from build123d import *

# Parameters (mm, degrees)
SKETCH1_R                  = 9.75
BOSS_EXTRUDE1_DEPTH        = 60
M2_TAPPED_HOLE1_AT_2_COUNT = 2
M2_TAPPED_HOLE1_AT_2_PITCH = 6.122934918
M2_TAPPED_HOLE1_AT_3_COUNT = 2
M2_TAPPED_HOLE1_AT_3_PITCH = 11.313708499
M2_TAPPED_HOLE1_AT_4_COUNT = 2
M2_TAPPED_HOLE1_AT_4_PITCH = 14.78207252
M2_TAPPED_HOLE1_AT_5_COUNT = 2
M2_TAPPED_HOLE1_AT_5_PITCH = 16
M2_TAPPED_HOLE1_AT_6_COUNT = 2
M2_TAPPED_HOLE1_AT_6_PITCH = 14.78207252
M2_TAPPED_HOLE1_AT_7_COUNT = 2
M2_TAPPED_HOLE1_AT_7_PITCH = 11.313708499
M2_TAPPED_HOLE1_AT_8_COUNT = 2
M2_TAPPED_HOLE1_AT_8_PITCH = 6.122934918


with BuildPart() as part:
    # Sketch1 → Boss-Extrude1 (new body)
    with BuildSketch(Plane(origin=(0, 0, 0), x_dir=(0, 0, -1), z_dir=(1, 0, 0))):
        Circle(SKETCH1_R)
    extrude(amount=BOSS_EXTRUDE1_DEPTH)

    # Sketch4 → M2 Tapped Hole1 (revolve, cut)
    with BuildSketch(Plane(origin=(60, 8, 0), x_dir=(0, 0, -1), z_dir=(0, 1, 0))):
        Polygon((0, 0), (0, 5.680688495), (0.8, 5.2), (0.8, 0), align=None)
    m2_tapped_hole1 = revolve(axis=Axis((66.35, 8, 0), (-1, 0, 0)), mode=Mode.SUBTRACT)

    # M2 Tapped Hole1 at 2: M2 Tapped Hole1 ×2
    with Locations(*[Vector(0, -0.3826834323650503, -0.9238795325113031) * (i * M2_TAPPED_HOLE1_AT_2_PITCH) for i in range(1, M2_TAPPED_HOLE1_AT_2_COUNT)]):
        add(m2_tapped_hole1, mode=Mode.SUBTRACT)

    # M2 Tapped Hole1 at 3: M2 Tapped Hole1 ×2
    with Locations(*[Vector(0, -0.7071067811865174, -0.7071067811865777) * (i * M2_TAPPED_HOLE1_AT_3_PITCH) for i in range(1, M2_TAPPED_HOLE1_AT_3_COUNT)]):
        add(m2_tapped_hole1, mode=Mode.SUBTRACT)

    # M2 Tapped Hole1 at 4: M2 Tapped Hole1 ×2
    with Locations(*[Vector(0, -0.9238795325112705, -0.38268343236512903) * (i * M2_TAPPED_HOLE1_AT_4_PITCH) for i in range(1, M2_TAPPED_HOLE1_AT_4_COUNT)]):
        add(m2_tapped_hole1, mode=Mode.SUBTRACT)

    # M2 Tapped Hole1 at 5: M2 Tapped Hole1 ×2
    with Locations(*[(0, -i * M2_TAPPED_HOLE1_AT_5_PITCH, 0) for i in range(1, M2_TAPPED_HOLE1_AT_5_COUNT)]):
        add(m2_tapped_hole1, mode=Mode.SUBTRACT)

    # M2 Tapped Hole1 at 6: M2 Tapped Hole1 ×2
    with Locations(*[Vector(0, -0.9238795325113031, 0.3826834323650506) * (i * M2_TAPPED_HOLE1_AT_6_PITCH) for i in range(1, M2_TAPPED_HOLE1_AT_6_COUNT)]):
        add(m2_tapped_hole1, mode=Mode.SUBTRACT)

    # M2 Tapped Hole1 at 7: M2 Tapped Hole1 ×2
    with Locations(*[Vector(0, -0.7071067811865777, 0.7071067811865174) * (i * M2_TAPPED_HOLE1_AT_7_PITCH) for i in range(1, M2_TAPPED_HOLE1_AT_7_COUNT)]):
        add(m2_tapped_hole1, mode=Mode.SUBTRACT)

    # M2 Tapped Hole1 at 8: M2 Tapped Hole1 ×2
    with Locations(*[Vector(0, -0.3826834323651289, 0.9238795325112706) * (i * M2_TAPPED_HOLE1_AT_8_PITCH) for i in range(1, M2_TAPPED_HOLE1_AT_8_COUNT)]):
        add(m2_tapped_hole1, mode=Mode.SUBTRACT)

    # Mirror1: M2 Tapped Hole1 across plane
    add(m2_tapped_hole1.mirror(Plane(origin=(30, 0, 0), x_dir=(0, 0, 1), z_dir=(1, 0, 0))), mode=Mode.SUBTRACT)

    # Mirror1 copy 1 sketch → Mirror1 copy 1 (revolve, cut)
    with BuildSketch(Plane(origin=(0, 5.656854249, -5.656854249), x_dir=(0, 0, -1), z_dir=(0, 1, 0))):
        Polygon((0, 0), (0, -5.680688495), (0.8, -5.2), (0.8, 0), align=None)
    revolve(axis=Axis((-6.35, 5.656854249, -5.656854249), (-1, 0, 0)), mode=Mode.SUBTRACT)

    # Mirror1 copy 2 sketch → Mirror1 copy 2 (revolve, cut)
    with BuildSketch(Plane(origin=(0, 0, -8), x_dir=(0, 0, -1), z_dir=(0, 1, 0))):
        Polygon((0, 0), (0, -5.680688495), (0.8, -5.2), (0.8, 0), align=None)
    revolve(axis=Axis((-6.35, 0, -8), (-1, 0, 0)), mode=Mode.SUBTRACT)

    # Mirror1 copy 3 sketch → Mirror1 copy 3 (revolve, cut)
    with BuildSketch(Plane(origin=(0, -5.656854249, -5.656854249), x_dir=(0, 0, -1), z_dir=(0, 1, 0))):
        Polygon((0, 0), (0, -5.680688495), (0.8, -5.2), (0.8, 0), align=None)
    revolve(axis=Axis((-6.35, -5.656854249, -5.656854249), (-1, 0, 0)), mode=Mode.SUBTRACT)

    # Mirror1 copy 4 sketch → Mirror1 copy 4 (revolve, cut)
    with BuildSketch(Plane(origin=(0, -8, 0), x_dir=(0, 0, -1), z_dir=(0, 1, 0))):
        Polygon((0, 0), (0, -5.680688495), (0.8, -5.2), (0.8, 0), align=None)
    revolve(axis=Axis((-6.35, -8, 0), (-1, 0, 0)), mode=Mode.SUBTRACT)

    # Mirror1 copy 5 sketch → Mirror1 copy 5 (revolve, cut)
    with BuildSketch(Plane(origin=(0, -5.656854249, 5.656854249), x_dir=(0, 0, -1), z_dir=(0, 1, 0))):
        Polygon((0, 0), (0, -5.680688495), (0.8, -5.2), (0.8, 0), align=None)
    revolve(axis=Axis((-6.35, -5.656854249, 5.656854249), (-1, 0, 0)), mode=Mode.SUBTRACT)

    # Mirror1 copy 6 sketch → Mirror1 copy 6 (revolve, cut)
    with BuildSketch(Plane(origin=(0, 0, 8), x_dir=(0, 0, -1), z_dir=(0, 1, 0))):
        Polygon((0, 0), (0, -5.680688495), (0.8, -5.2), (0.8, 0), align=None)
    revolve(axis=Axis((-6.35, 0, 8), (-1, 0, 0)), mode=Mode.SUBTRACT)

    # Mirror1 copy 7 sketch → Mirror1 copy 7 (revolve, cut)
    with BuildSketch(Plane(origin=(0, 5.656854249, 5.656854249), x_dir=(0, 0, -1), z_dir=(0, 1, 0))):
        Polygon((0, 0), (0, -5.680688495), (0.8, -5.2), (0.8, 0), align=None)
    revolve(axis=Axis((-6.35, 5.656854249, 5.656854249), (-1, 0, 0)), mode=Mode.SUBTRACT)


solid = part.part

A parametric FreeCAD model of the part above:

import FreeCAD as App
import Part
import Sketcher
from FreeCAD import Vector
Q = App.Units.Quantity

doc = App.newDocument("Part")
body = doc.addObject("PartDesign::Body", "Body")

sketch1 = body.newObject("Sketcher::SketchObject", "Sketch")
sketch1.AttachmentSupport = (doc.getObject("YZ_Plane"), [""])
sketch1.MapMode = "FlatFace"
sketch1.addGeometry(Part.Circle(Vector(0, 0, 0), Vector(0, 0, 1), 10), False)
sketch1.addConstraint(Sketcher.Constraint("Coincident", 0, 3, -1, 1))
sketch1.addConstraint(Sketcher.Constraint("Diameter", 0, 19.5))
pad1 = body.newObject("PartDesign::Pad", "Pad")
pad1.Profile = sketch1
pad1.Length = 60

sketch2 = body.newObject("Sketcher::SketchObject", "Sketch001")
sketch2.AttachmentSupport = (doc.getObject("XZ_Plane"), [""])
sketch2.MapMode = "FlatFace"
sketch2.AttachmentOffset = App.Placement(Vector(0, 0, -8), App.Rotation())
sketch2.addGeometry(Part.LineSegment(Vector(54.3, 0, 0), Vector(60, 0, 0)), False)
sketch2.addGeometry(Part.LineSegment(Vector(60, 0, 0), Vector(60, -0.8, 0)), False)
sketch2.addGeometry(Part.LineSegment(Vector(60, -0.8, 0), Vector(54.8, -0.8, 0)), False)
sketch2.addGeometry(Part.LineSegment(Vector(54.8, -0.8, 0), Vector(54.3, 0, 0)), False)
sketch2.addConstraint(Sketcher.Constraint("Coincident", 0, 2, 1, 1))
sketch2.addConstraint(Sketcher.Constraint("Coincident", 1, 2, 2, 1))
sketch2.addConstraint(Sketcher.Constraint("Coincident", 2, 2, 3, 1))
sketch2.addConstraint(Sketcher.Constraint("Coincident", 3, 2, 0, 1))
sketch2.addConstraint(Sketcher.Constraint("Horizontal", 0))
sketch2.addConstraint(Sketcher.Constraint("Vertical", 1))
sketch2.addConstraint(Sketcher.Constraint("Horizontal", 2))
sketch2.addConstraint(Sketcher.Constraint("PointOnObject", 0, 2, -1))
sketch2.addConstraint(Sketcher.Constraint("Angle", 3, Q("121 deg")))
sketch2.addConstraint(Sketcher.Constraint("DistanceX", 2, 2, 2, 1, 5.2))
sketch2.addConstraint(Sketcher.Constraint("DistanceY", 1, 2, 1, 1, 0.8))
sketch2.addConstraint(Sketcher.Constraint("DistanceX", -1, 1, 0, 2, 60.0))
groove = body.newObject("PartDesign::Groove", "Groove")
groove.Profile = sketch2
groove.ReferenceAxis = (sketch2, ["H_Axis"])
groove.Angle = 360
doc.recompute()

datumline = body.newObject("PartDesign::Line", "DatumLine")
datumline.Placement = App.Placement(Vector(0, 0, 0), App.Rotation(Vector(0, 0, 1), Vector(0, -0.382683432, -0.923879532)))
linearpattern = body.newObject("PartDesign::LinearPattern", "LinearPattern")
linearpattern.Originals = [groove]
linearpattern.Direction = (datumline, [""])
linearpattern.Mode = "offset"
linearpattern.Offset = 6.122935
linearpattern.Occurrences = 2
body.Tip = linearpattern
doc.recompute()

datumline2 = body.newObject("PartDesign::Line", "DatumLine001")
datumline2.Placement = App.Placement(Vector(0, 0, 0), App.Rotation(Vector(0, 0, 1), Vector(0, -0.707106781, -0.707106781)))
linearpattern2 = body.newObject("PartDesign::LinearPattern", "LinearPattern001")
linearpattern2.Originals = [groove]
linearpattern2.Direction = (datumline2, [""])
linearpattern2.Mode = "offset"
linearpattern2.Offset = 11.313708
linearpattern2.Occurrences = 2
body.Tip = linearpattern2
doc.recompute()

datumline3 = body.newObject("PartDesign::Line", "DatumLine002")
datumline3.Placement = App.Placement(Vector(0, 0, 0), App.Rotation(Vector(0, 0, 1), Vector(0, -0.923879533, -0.382683432)))
linearpattern3 = body.newObject("PartDesign::LinearPattern", "LinearPattern002")
linearpattern3.Originals = [groove]
linearpattern3.Direction = (datumline3, [""])
linearpattern3.Mode = "offset"
linearpattern3.Offset = 14.782073
linearpattern3.Occurrences = 2
body.Tip = linearpattern3
doc.recompute()

linearpattern4 = body.newObject("PartDesign::LinearPattern", "LinearPattern003")
linearpattern4.Originals = [groove]
linearpattern4.Direction = (doc.getObject("Y_Axis"), [""])
linearpattern4.Mode = "offset"
linearpattern4.Offset = 16
linearpattern4.Occurrences = 2
linearpattern4.Reversed = True
body.Tip = linearpattern4
doc.recompute()

datumline4 = body.newObject("PartDesign::Line", "DatumLine003")
datumline4.Placement = App.Placement(Vector(0, 0, 0), App.Rotation(Vector(0, 0, 1), Vector(0, -0.923879533, 0.382683432)))
linearpattern5 = body.newObject("PartDesign::LinearPattern", "LinearPattern004")
linearpattern5.Originals = [groove]
linearpattern5.Direction = (datumline4, [""])
linearpattern5.Mode = "offset"
linearpattern5.Offset = 14.782073
linearpattern5.Occurrences = 2
body.Tip = linearpattern5
doc.recompute()

datumline5 = body.newObject("PartDesign::Line", "DatumLine004")
datumline5.Placement = App.Placement(Vector(0, 0, 0), App.Rotation(Vector(0, 0, 1), Vector(0, -0.707106781, 0.707106781)))
linearpattern6 = body.newObject("PartDesign::LinearPattern", "LinearPattern005")
linearpattern6.Originals = [groove]
linearpattern6.Direction = (datumline5, [""])
linearpattern6.Mode = "offset"
linearpattern6.Offset = 11.313708
linearpattern6.Occurrences = 2
body.Tip = linearpattern6
doc.recompute()

datumline6 = body.newObject("PartDesign::Line", "DatumLine005")
datumline6.Placement = App.Placement(Vector(0, 0, 0), App.Rotation(Vector(0, 0, 1), Vector(0, -0.382683432, 0.923879532)))
linearpattern7 = body.newObject("PartDesign::LinearPattern", "LinearPattern006")
linearpattern7.Originals = [groove]
linearpattern7.Direction = (datumline6, [""])
linearpattern7.Mode = "offset"
linearpattern7.Offset = 6.122935
linearpattern7.Occurrences = 2
body.Tip = linearpattern7
doc.recompute()

datumplane = body.newObject("PartDesign::Plane", "DatumPlane")
datumplane.AttachmentSupport = (doc.getObject("YZ_Plane"), [""])
datumplane.MapMode = "FlatFace"
datumplane.AttachmentOffset = App.Placement(Vector(0, 0, 30), App.Rotation())
mirrored = body.newObject("PartDesign::Mirrored", "Mirrored")
mirrored.Originals = [groove]
mirrored.MirrorPlane = (datumplane, [""])
body.Tip = mirrored

sketch3 = body.newObject("Sketcher::SketchObject", "Sketch002")
sketch3.AttachmentSupport = (doc.getObject("XZ_Plane"), [""])
sketch3.MapMode = "FlatFace"
sketch3.AttachmentOffset = App.Placement(Vector(0, 0, -5.656854), App.Rotation())
sketch3.addGeometry(Part.LineSegment(Vector(0, -5.7, 0), Vector(5.7, -5.7, 0)), False)
sketch3.addGeometry(Part.LineSegment(Vector(5.7, -5.7, 0), Vector(5.2, -6.5, 0)), False)
sketch3.addGeometry(Part.LineSegment(Vector(5.2, -6.5, 0), Vector(0, -6.5, 0)), False)
sketch3.addGeometry(Part.LineSegment(Vector(0, -6.5, 0), Vector(0, -5.7, 0)), False)
sketch3.addGeometry(Part.LineSegment(Vector(5.7, -5.7, 0), Vector(0, -5.7, 0)), True)
sketch3.addConstraint(Sketcher.Constraint("Coincident", 0, 2, 1, 1))
sketch3.addConstraint(Sketcher.Constraint("Coincident", 1, 2, 2, 1))
sketch3.addConstraint(Sketcher.Constraint("Coincident", 2, 2, 3, 1))
sketch3.addConstraint(Sketcher.Constraint("Coincident", 3, 2, 0, 1))
sketch3.addConstraint(Sketcher.Constraint("Horizontal", 0))
sketch3.addConstraint(Sketcher.Constraint("Horizontal", 2))
sketch3.addConstraint(Sketcher.Constraint("Vertical", 3))
sketch3.addConstraint(Sketcher.Constraint("Horizontal", 4))
sketch3.addConstraint(Sketcher.Constraint("Coincident", 4, 1, 0, 2))
sketch3.addConstraint(Sketcher.Constraint("PointOnObject", 2, 2, -2))
sketch3.addConstraint(Sketcher.Constraint("PointOnObject", 4, 2, -2))
sketch3.addConstraint(Sketcher.Constraint("Angle", 1, Q("-121 deg")))
sketch3.addConstraint(Sketcher.Constraint("DistanceX", 2, 2, 2, 1, 5.2))
sketch3.addConstraint(Sketcher.Constraint("DistanceY", 3, 1, 3, 2, 0.8))
sketch3.addConstraint(Sketcher.Constraint("DistanceY", 0, 2, -1, 1, 5.656854))
groove2 = body.newObject("PartDesign::Groove", "Groove001")
groove2.Profile = sketch3
groove2.ReferenceAxis = (sketch3, ["Axis0"])
groove2.Angle = 360

sketch4 = body.newObject("Sketcher::SketchObject", "Sketch003")
sketch4.AttachmentSupport = (doc.getObject("XZ_Plane"), [""])
sketch4.MapMode = "FlatFace"
sketch4.addGeometry(Part.LineSegment(Vector(0, -8, 0), Vector(5.7, -8, 0)), False)
sketch4.addGeometry(Part.LineSegment(Vector(5.7, -8, 0), Vector(5.2, -8.8, 0)), False)
sketch4.addGeometry(Part.LineSegment(Vector(5.2, -8.8, 0), Vector(0, -8.8, 0)), False)
sketch4.addGeometry(Part.LineSegment(Vector(0, -8.8, 0), Vector(0, -8, 0)), False)
sketch4.addGeometry(Part.LineSegment(Vector(5.7, -8, 0), Vector(0, -8, 0)), True)
sketch4.addConstraint(Sketcher.Constraint("Coincident", 0, 2, 1, 1))
sketch4.addConstraint(Sketcher.Constraint("Coincident", 1, 2, 2, 1))
sketch4.addConstraint(Sketcher.Constraint("Coincident", 2, 2, 3, 1))
sketch4.addConstraint(Sketcher.Constraint("Coincident", 3, 2, 0, 1))
sketch4.addConstraint(Sketcher.Constraint("Horizontal", 0))
sketch4.addConstraint(Sketcher.Constraint("Horizontal", 2))
sketch4.addConstraint(Sketcher.Constraint("Vertical", 3))
sketch4.addConstraint(Sketcher.Constraint("Horizontal", 4))
sketch4.addConstraint(Sketcher.Constraint("Coincident", 4, 1, 0, 2))
sketch4.addConstraint(Sketcher.Constraint("PointOnObject", 2, 2, -2))
sketch4.addConstraint(Sketcher.Constraint("PointOnObject", 4, 2, -2))
sketch4.addConstraint(Sketcher.Constraint("Angle", 1, Q("-121 deg")))
sketch4.addConstraint(Sketcher.Constraint("DistanceX", 2, 2, 2, 1, 5.2))
sketch4.addConstraint(Sketcher.Constraint("DistanceY", 3, 1, 3, 2, 0.8))
sketch4.addConstraint(Sketcher.Constraint("DistanceY", 0, 2, -1, 1, 8.0))
groove3 = body.newObject("PartDesign::Groove", "Groove002")
groove3.Profile = sketch4
groove3.ReferenceAxis = (sketch4, ["Axis0"])
groove3.Angle = 360

sketch5 = body.newObject("Sketcher::SketchObject", "Sketch004")
sketch5.AttachmentSupport = (doc.getObject("XZ_Plane"), [""])
sketch5.MapMode = "FlatFace"
sketch5.AttachmentOffset = App.Placement(Vector(0, 0, 5.656854), App.Rotation())
sketch5.addGeometry(Part.LineSegment(Vector(0, -5.7, 0), Vector(5.7, -5.7, 0)), False)
sketch5.addGeometry(Part.LineSegment(Vector(5.7, -5.7, 0), Vector(5.2, -6.5, 0)), False)
sketch5.addGeometry(Part.LineSegment(Vector(5.2, -6.5, 0), Vector(0, -6.5, 0)), False)
sketch5.addGeometry(Part.LineSegment(Vector(0, -6.5, 0), Vector(0, -5.7, 0)), False)
sketch5.addGeometry(Part.LineSegment(Vector(5.7, -5.7, 0), Vector(0, -5.7, 0)), True)
sketch5.addConstraint(Sketcher.Constraint("Coincident", 0, 2, 1, 1))
sketch5.addConstraint(Sketcher.Constraint("Coincident", 1, 2, 2, 1))
sketch5.addConstraint(Sketcher.Constraint("Coincident", 2, 2, 3, 1))
sketch5.addConstraint(Sketcher.Constraint("Coincident", 3, 2, 0, 1))
sketch5.addConstraint(Sketcher.Constraint("Horizontal", 0))
sketch5.addConstraint(Sketcher.Constraint("Horizontal", 2))
sketch5.addConstraint(Sketcher.Constraint("Vertical", 3))
sketch5.addConstraint(Sketcher.Constraint("Horizontal", 4))
sketch5.addConstraint(Sketcher.Constraint("Coincident", 4, 1, 0, 2))
sketch5.addConstraint(Sketcher.Constraint("PointOnObject", 2, 2, -2))
sketch5.addConstraint(Sketcher.Constraint("PointOnObject", 4, 2, -2))
sketch5.addConstraint(Sketcher.Constraint("Angle", 1, Q("-121 deg")))
sketch5.addConstraint(Sketcher.Constraint("DistanceX", 2, 2, 2, 1, 5.2))
sketch5.addConstraint(Sketcher.Constraint("DistanceY", 3, 1, 3, 2, 0.8))
sketch5.addConstraint(Sketcher.Constraint("DistanceY", 0, 2, -1, 1, 5.656854))
groove4 = body.newObject("PartDesign::Groove", "Groove003")
groove4.Profile = sketch5
groove4.ReferenceAxis = (sketch5, ["Axis0"])
groove4.Angle = 360

sketch6 = body.newObject("Sketcher::SketchObject", "Sketch005")
sketch6.AttachmentSupport = (doc.getObject("XZ_Plane"), [""])
sketch6.MapMode = "FlatFace"
sketch6.AttachmentOffset = App.Placement(Vector(0, 0, 8), App.Rotation())
sketch6.addGeometry(Part.LineSegment(Vector(0, 0, 0), Vector(5.7, 0, 0)), False)
sketch6.addGeometry(Part.LineSegment(Vector(5.7, 0, 0), Vector(5.2, -0.8, 0)), False)
sketch6.addGeometry(Part.LineSegment(Vector(5.2, -0.8, 0), Vector(0, -0.8, 0)), False)
sketch6.addGeometry(Part.LineSegment(Vector(0, -0.8, 0), Vector(0, 0, 0)), False)
sketch6.addConstraint(Sketcher.Constraint("Coincident", 0, 2, 1, 1))
sketch6.addConstraint(Sketcher.Constraint("Coincident", 1, 2, 2, 1))
sketch6.addConstraint(Sketcher.Constraint("Coincident", 2, 2, 3, 1))
sketch6.addConstraint(Sketcher.Constraint("Coincident", 3, 2, 0, 1))
sketch6.addConstraint(Sketcher.Constraint("Horizontal", 0))
sketch6.addConstraint(Sketcher.Constraint("Horizontal", 2))
sketch6.addConstraint(Sketcher.Constraint("Vertical", 3))
sketch6.addConstraint(Sketcher.Constraint("Coincident", 3, 2, -1, 1))
sketch6.addConstraint(Sketcher.Constraint("Angle", 1, Q("-121 deg")))
sketch6.addConstraint(Sketcher.Constraint("DistanceX", 2, 2, 2, 1, 5.2))
sketch6.addConstraint(Sketcher.Constraint("DistanceY", 3, 1, 3, 2, 0.8))
groove5 = body.newObject("PartDesign::Groove", "Groove004")
groove5.Profile = sketch6
groove5.ReferenceAxis = (sketch6, ["H_Axis"])
groove5.Angle = 360

sketch7 = body.newObject("Sketcher::SketchObject", "Sketch006")
sketch7.AttachmentSupport = (doc.getObject("XZ_Plane"), [""])
sketch7.MapMode = "FlatFace"
sketch7.AttachmentOffset = App.Placement(Vector(0, 0, 5.656854), App.Rotation())
sketch7.addGeometry(Part.LineSegment(Vector(0, 5.7, 0), Vector(5.7, 5.7, 0)), False)
sketch7.addGeometry(Part.LineSegment(Vector(5.7, 5.7, 0), Vector(5.2, 4.9, 0)), False)
sketch7.addGeometry(Part.LineSegment(Vector(5.2, 4.9, 0), Vector(0, 4.9, 0)), False)
sketch7.addGeometry(Part.LineSegment(Vector(0, 4.9, 0), Vector(0, 5.7, 0)), False)
sketch7.addGeometry(Part.LineSegment(Vector(5.7, 5.7, 0), Vector(0, 5.7, 0)), True)
sketch7.addConstraint(Sketcher.Constraint("Coincident", 0, 2, 1, 1))
sketch7.addConstraint(Sketcher.Constraint("Coincident", 1, 2, 2, 1))
sketch7.addConstraint(Sketcher.Constraint("Coincident", 2, 2, 3, 1))
sketch7.addConstraint(Sketcher.Constraint("Coincident", 3, 2, 0, 1))
sketch7.addConstraint(Sketcher.Constraint("Horizontal", 0))
sketch7.addConstraint(Sketcher.Constraint("Horizontal", 2))
sketch7.addConstraint(Sketcher.Constraint("Vertical", 3))
sketch7.addConstraint(Sketcher.Constraint("Horizontal", 4))
sketch7.addConstraint(Sketcher.Constraint("Coincident", 4, 1, 0, 2))
sketch7.addConstraint(Sketcher.Constraint("PointOnObject", 2, 2, -2))
sketch7.addConstraint(Sketcher.Constraint("PointOnObject", 4, 2, -2))
sketch7.addConstraint(Sketcher.Constraint("Angle", 1, Q("-121 deg")))
sketch7.addConstraint(Sketcher.Constraint("DistanceX", 2, 2, 2, 1, 5.2))
sketch7.addConstraint(Sketcher.Constraint("DistanceY", 3, 1, 3, 2, 0.8))
sketch7.addConstraint(Sketcher.Constraint("DistanceY", -1, 1, 0, 2, 5.656854))
groove6 = body.newObject("PartDesign::Groove", "Groove005")
groove6.Profile = sketch7
groove6.ReferenceAxis = (sketch7, ["Axis0"])
groove6.Angle = 360

sketch8 = body.newObject("Sketcher::SketchObject", "Sketch007")
sketch8.AttachmentSupport = (doc.getObject("XZ_Plane"), [""])
sketch8.MapMode = "FlatFace"
sketch8.addGeometry(Part.LineSegment(Vector(0, 8, 0), Vector(5.7, 8, 0)), False)
sketch8.addGeometry(Part.LineSegment(Vector(5.7, 8, 0), Vector(5.2, 7.2, 0)), False)
sketch8.addGeometry(Part.LineSegment(Vector(5.2, 7.2, 0), Vector(0, 7.2, 0)), False)
sketch8.addGeometry(Part.LineSegment(Vector(0, 7.2, 0), Vector(0, 8, 0)), False)
sketch8.addGeometry(Part.LineSegment(Vector(5.7, 8, 0), Vector(0, 8, 0)), True)
sketch8.addConstraint(Sketcher.Constraint("Coincident", 0, 2, 1, 1))
sketch8.addConstraint(Sketcher.Constraint("Coincident", 1, 2, 2, 1))
sketch8.addConstraint(Sketcher.Constraint("Coincident", 2, 2, 3, 1))
sketch8.addConstraint(Sketcher.Constraint("Coincident", 3, 2, 0, 1))
sketch8.addConstraint(Sketcher.Constraint("Horizontal", 0))
sketch8.addConstraint(Sketcher.Constraint("Horizontal", 2))
sketch8.addConstraint(Sketcher.Constraint("Vertical", 3))
sketch8.addConstraint(Sketcher.Constraint("Horizontal", 4))
sketch8.addConstraint(Sketcher.Constraint("Coincident", 4, 1, 0, 2))
sketch8.addConstraint(Sketcher.Constraint("PointOnObject", 2, 2, -2))
sketch8.addConstraint(Sketcher.Constraint("PointOnObject", 4, 2, -2))
sketch8.addConstraint(Sketcher.Constraint("Angle", 1, Q("-121 deg")))
sketch8.addConstraint(Sketcher.Constraint("DistanceX", 2, 2, 2, 1, 5.2))
sketch8.addConstraint(Sketcher.Constraint("DistanceY", 3, 1, 3, 2, 0.8))
sketch8.addConstraint(Sketcher.Constraint("DistanceY", -1, 1, 0, 2, 8.0))
groove7 = body.newObject("PartDesign::Groove", "Groove006")
groove7.Profile = sketch8
groove7.ReferenceAxis = (sketch8, ["Axis0"])
groove7.Angle = 360

sketch9 = body.newObject("Sketcher::SketchObject", "Sketch008")
sketch9.AttachmentSupport = (doc.getObject("XZ_Plane"), [""])
sketch9.MapMode = "FlatFace"
sketch9.AttachmentOffset = App.Placement(Vector(0, 0, -5.656854), App.Rotation())
sketch9.addGeometry(Part.LineSegment(Vector(0, 5.7, 0), Vector(5.7, 5.7, 0)), False)
sketch9.addGeometry(Part.LineSegment(Vector(5.7, 5.7, 0), Vector(5.2, 4.9, 0)), False)
sketch9.addGeometry(Part.LineSegment(Vector(5.2, 4.9, 0), Vector(0, 4.9, 0)), False)
sketch9.addGeometry(Part.LineSegment(Vector(0, 4.9, 0), Vector(0, 5.7, 0)), False)
sketch9.addGeometry(Part.LineSegment(Vector(5.7, 5.7, 0), Vector(0, 5.7, 0)), True)
sketch9.addConstraint(Sketcher.Constraint("Coincident", 0, 2, 1, 1))
sketch9.addConstraint(Sketcher.Constraint("Coincident", 1, 2, 2, 1))
sketch9.addConstraint(Sketcher.Constraint("Coincident", 2, 2, 3, 1))
sketch9.addConstraint(Sketcher.Constraint("Coincident", 3, 2, 0, 1))
sketch9.addConstraint(Sketcher.Constraint("Horizontal", 0))
sketch9.addConstraint(Sketcher.Constraint("Horizontal", 2))
sketch9.addConstraint(Sketcher.Constraint("Vertical", 3))
sketch9.addConstraint(Sketcher.Constraint("Horizontal", 4))
sketch9.addConstraint(Sketcher.Constraint("Coincident", 4, 1, 0, 2))
sketch9.addConstraint(Sketcher.Constraint("PointOnObject", 2, 2, -2))
sketch9.addConstraint(Sketcher.Constraint("PointOnObject", 4, 2, -2))
sketch9.addConstraint(Sketcher.Constraint("Angle", 1, Q("-121 deg")))
sketch9.addConstraint(Sketcher.Constraint("DistanceX", 2, 2, 2, 1, 5.2))
sketch9.addConstraint(Sketcher.Constraint("DistanceY", 3, 1, 3, 2, 0.8))
sketch9.addConstraint(Sketcher.Constraint("DistanceY", -1, 1, 0, 2, 5.656854))
groove8 = body.newObject("PartDesign::Groove", "Groove007")
groove8.Profile = sketch9
groove8.ReferenceAxis = (sketch9, ["Axis0"])
groove8.Angle = 360

doc.recompute()
